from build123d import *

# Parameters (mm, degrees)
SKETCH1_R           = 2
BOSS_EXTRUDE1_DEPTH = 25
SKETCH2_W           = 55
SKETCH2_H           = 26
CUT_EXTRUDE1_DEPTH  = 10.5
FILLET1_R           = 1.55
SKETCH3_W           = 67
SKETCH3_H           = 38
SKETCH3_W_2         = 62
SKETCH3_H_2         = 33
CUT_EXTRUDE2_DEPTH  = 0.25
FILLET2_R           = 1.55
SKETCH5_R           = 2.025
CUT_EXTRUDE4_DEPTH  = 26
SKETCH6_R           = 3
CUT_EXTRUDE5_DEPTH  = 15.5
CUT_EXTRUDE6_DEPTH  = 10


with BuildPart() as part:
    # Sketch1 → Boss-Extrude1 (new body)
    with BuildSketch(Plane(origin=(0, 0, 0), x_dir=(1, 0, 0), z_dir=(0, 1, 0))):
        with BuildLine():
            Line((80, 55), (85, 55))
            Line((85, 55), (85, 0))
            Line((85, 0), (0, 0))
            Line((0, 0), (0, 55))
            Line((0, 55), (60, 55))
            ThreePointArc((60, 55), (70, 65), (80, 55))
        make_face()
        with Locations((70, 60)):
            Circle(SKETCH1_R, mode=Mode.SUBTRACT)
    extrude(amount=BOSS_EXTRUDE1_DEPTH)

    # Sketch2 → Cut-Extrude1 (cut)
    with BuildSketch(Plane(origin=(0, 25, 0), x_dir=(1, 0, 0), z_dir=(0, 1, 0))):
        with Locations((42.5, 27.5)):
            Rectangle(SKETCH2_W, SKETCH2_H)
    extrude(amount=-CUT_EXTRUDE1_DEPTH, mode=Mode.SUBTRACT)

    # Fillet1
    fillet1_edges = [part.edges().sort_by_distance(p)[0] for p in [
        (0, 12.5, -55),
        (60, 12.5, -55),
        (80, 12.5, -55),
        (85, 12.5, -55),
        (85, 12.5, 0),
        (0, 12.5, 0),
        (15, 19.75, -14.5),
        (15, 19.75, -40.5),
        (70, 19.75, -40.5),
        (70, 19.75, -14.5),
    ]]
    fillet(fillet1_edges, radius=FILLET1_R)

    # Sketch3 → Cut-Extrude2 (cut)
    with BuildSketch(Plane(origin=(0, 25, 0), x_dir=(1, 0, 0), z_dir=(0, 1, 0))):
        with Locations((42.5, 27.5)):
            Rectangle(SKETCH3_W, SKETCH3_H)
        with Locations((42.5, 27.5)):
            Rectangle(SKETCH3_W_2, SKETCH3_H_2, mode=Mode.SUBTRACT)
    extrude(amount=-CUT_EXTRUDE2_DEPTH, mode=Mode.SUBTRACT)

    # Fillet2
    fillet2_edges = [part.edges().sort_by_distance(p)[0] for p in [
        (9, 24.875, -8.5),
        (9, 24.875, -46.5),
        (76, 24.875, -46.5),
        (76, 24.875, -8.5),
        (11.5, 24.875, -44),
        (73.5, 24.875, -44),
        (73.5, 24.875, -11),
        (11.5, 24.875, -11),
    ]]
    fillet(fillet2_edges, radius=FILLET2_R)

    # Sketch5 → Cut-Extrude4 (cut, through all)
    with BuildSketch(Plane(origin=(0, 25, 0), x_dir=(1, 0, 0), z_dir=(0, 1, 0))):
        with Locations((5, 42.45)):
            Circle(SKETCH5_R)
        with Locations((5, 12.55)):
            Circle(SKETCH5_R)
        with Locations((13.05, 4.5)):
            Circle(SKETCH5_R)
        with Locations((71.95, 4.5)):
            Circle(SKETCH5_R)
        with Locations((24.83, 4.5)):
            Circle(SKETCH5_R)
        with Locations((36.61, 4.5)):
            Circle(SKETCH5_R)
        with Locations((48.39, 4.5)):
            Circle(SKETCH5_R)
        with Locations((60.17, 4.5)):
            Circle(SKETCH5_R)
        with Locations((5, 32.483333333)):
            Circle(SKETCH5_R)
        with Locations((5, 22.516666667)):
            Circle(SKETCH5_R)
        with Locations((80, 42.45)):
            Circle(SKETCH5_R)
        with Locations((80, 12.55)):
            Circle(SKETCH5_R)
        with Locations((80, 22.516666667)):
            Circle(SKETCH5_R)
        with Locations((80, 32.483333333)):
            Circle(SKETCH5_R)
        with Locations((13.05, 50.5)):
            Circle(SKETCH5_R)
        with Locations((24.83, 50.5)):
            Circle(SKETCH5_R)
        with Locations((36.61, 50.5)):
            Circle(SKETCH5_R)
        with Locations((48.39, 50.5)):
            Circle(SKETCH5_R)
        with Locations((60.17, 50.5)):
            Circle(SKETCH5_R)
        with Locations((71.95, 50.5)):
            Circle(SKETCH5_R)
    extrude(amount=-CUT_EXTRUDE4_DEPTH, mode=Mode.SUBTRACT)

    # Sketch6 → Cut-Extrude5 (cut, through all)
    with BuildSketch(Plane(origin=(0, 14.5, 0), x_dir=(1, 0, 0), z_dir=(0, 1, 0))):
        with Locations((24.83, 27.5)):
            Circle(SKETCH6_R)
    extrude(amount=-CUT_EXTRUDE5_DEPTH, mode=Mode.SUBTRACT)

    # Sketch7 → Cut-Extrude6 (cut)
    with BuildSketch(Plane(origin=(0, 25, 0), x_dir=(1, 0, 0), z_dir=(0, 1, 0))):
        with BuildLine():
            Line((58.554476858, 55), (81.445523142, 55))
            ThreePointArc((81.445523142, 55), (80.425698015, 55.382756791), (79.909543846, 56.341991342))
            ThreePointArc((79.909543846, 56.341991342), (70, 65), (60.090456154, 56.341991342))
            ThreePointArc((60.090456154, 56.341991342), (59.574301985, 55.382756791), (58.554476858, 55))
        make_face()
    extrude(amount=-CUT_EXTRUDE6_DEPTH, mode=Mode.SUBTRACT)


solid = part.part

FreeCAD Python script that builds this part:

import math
import FreeCAD as App
import Part
import Sketcher

V = App.Vector
Q = App.Units.Quantity


def edges_at(feature, points):
    """Names of the edges that pass closest to the given points."""
    edges = feature.Shape.Edges
    near = lambda p: min(range(len(edges)), key=lambda i: edges[i].distToShape(Part.Vertex(*p))[0])
    return sorted({f"Edge{near(p) + 1}" for p in points})


def add_polygon(sketch, points):
    """Adds a closed chain of lines whose ends are joined by coincident constraints."""
    first, n = sketch.GeometryCount, len(points)
    for a, b in zip(points, points[1:] + points[:1]):
        sketch.addGeometry(Part.LineSegment(App.Vector(*a, 0), App.Vector(*b, 0)), False)
    for i in range(n):
        sketch.addConstraint(Sketcher.Constraint("Coincident", first + i, 2, first + (i + 1) % n, 1))

doc = App.newDocument("Part")
params = doc.addObject("Spreadsheet::Sheet", "Params")
for row, (alias, value) in enumerate([
    ("sketch1_diameter", "4 mm"),
    ("sketch1_radius", "10 mm"),
    ("sketch1_width", "5 mm"),
    ("sketch1_width2", "60 mm"),
    ("sketch1_height", "55 mm"),
    ("pad1_length", "25 mm"),
    ("sketch2_width", "55 mm"),
    ("sketch2_height", "26 mm"),
    ("pocket1_length", "10.5 mm"),
    ("fillet_radius", "1.55 mm"),
    ("sketch3_width", "67 mm"),
    ("sketch3_width2", "62 mm"),
    ("sketch3_height", "38 mm"),
    ("sketch3_height2", "33 mm"),
    ("pocket2_length", "0.25 mm"),
    ("fillet2_radius", "1.55 mm"),
    ("sketch4_diameter", "4.05 mm"),
    ("sketch5_diameter", "6 mm"),
    ("sketch6_radius", "10 mm"),
    ("sketch6_radius2", "1.55 mm"),
    ("pocket5_length", "10 mm"),
], start=1):
    params.set(f"A{row}", alias)
    params.set(f"B{row}", "=" + value)
    params.setAlias(f"B{row}", alias)

body = doc.addObject("PartDesign::Body", "Body")

# Sketch on XZ plane
sketch1 = body.newObject("Sketcher::SketchObject", "Sketch")
sketch1.AttachmentSupport = (doc.getObject("XZ_Plane"), [""])
sketch1.MapMode = "FlatFace"
sketch1.addGeometry([
    Part.LineSegment(V(85, -55, 0), V(80, -55, 0)),  # 0
    Part.ArcOfCircle(Part.Circle(V(70, -55, 0), V(0, 0, 1), 10), math.radians(180), math.radians(360)),  # 1
    Part.LineSegment(V(60, -55, 0), V(0, -55, 0)),  # 2
    Part.LineSegment(V(0, -55, 0), V(0, 0, 0)),  # 3
    Part.LineSegment(V(0, 0, 0), V(85, 0, 0)),  # 4
    Part.LineSegment(V(85, 0, 0), V(85, -55, 0)),  # 5
    Part.Circle(V(70, -60, 0), V(0, 0, 1), 2),  # 6
], False)
sketch1.addConstraint([
    Sketcher.Constraint("Coincident", 0, 2, 1, 2),
    Sketcher.Constraint("Coincident", 1, 1, 2, 1),
    Sketcher.Constraint("Coincident", 2, 2, 3, 1),
    Sketcher.Constraint("Coincident", 3, 2, 4, 1),
    Sketcher.Constraint("Coincident", 4, 2, 5, 1),
    Sketcher.Constraint("Coincident", 5, 2, 0, 1),
    Sketcher.Constraint("Horizontal", 0),
    Sketcher.Constraint("Horizontal", 2),
    Sketcher.Constraint("Vertical", 3),
    Sketcher.Constraint("Horizontal", 4),
    Sketcher.Constraint("Vertical", 5),
    Sketcher.Constraint("Coincident", 3, 2, -1, 1),
    Sketcher.Constraint("Horizontal", 1, 3, 0, 2),
    Sketcher.Constraint("Horizontal", 0, 2, 1, 1),
    Sketcher.Constraint("Vertical", 1, 3, 6, 3),
    Sketcher.Constraint("Diameter", 6, Q("4 mm")),
    Sketcher.Constraint("Radius", 1, Q("10 mm")),
    Sketcher.Constraint("DistanceX", 0, 2, 0, 1, Q("5 mm")),
    Sketcher.Constraint("DistanceX", 2, 2, 2, 1, Q("60 mm")),
    Sketcher.Constraint("DistanceY", 3, 1, 3, 2, Q("55 mm")),
    Sketcher.Constraint("DistanceY", 6, 3, -1, 1, Q("60 mm")),
])
sketch1.setExpression("Constraints[15]", "Params.sketch1_diameter")
sketch1.setExpression("Constraints[16]", "Params.sketch1_radius")
sketch1.setExpression("Constraints[17]", "Params.sketch1_width")
sketch1.setExpression("Constraints[18]", "Params.sketch1_width2")
sketch1.setExpression("Constraints[19]", "Params.sketch1_height")
pad1 = body.newObject("PartDesign::Pad", "Pad")
pad1.Profile = sketch1
pad1.setExpression("Length", "Params.pad1_length")
pad1.Reversed = True

# Sketch on XZ plane
sketch2 = body.newObject("Sketcher::SketchObject", "Sketch001")
sketch2.AttachmentSupport = (doc.getObject("XZ_Plane"), [""])
sketch2.MapMode = "FlatFace"
sketch2.AttachmentOffset = App.Placement(V(0, 0, -25), App.Rotation())
add_polygon(sketch2, [(15, -40), (15, -14), (70, -14), (70, -40)])  # lines 0-3
sketch2.addConstraint([
    Sketcher.Constraint("Vertical", 0),
    Sketcher.Constraint("Horizontal", 1),
    Sketcher.Constraint("Vertical", 2),
    Sketcher.Constraint("Horizontal", 3),
    Sketcher.Constraint("DistanceX", 1, 1, 1, 2, Q("55 mm")),
    Sketcher.Constraint("DistanceY", 0, 1, 0, 2, Q("26 mm")),
    Sketcher.Constraint("DistanceX", -1, 1, 0, 2, Q("15 mm")),
    Sketcher.Constraint("DistanceY", 0, 2, -1, 1, Q("14.5 mm")),
])
sketch2.setExpression("Constraints[8]", "Params.sketch2_width")
sketch2.setExpression("Constraints[9]", "Params.sketch2_height")
pocket1 = body.newObject("PartDesign::Pocket", "Pocket")
pocket1.Profile = sketch2
pocket1.setExpression("Length", "Params.pocket1_length")
pocket1.Reversed = True
doc.recompute()

fillet = body.newObject("PartDesign::Fillet", "Fillet")
fillet.Base = (pocket1, edges_at(pocket1, [
    (0, 12.5, -55),
    (60, 12.5, -55),
    (80, 12.5, -55),
    (85, 12.5, -55),
    (85, 12.5, 0),
    (0, 12.5, 0),
    (15, 19.75, -14.5),
    (15, 19.75, -40.5),
    (70, 19.75, -40.5),
    (70, 19.75, -14.5),
]))
fillet.setExpression("Radius", "Params.fillet_radius")

# Sketch on XZ plane
sketch3 = body.newObject("Sketcher::SketchObject", "Sketch002")
sketch3.AttachmentSupport = (doc.getObject("XZ_Plane"), [""])
sketch3.MapMode = "FlatFace"
sketch3.AttachmentOffset = App.Placement(V(0, 0, -25), App.Rotation())
add_polygon(sketch3, [(9, -46), (9, -8), (76, -8), (76, -46)])  # lines 0-3
add_polygon(sketch3, [(74, -11), (12, -11), (12, -44), (74, -44)])  # lines 4-7
sketch3.addConstraint([
    Sketcher.Constraint("Vertical", 0),
    Sketcher.Constraint("Horizontal", 1),
    Sketcher.Constraint("Vertical", 2),
    Sketcher.Constraint("Horizontal", 3),
    Sketcher.Constraint("Horizontal", 4),
    Sketcher.Constraint("Vertical", 5),
    Sketcher.Constraint("Horizontal", 6),
    Sketcher.Constraint("Vertical", 7),
    Sketcher.Constraint("DistanceX", 1, 1, 1, 2, Q("67 mm")),
    Sketcher.Constraint("DistanceX", 4, 2, 4, 1, Q("62 mm")),
    Sketcher.Constraint("DistanceY", 0, 1, 0, 2, Q("38 mm")),
    Sketcher.Constraint("DistanceY", 5, 2, 5, 1, Q("33 mm")),
    Sketcher.Constraint("DistanceX", -1, 1, 0, 2, Q("9 mm")),
    Sketcher.Constraint("DistanceY", 4, 2, -1, 1, Q("11 mm")),
    Sketcher.Constraint("DistanceY", 0, 2, -1, 1, Q("8.5 mm")),
    Sketcher.Constraint("DistanceX", -1, 1, 4, 2, Q("11.5 mm")),
])
sketch3.setExpression("Constraints[16]", "Params.sketch3_width")
sketch3.setExpression("Constraints[17]", "Params.sketch3_width2")
sketch3.setExpression("Constraints[18]", "Params.sketch3_height")
sketch3.setExpression("Constraints[19]", "Params.sketch3_height2")
pocket2 = body.newObject("PartDesign::Pocket", "Pocket001")
pocket2.Profile = sketch3
pocket2.setExpression("Length", "Params.pocket2_length")
pocket2.Reversed = True
doc.recompute()

fillet2 = body.newObject("PartDesign::Fillet", "Fillet001")
fillet2.Base = (pocket2, edges_at(pocket2, [
    (9, 24.875, -8.5),
    (9, 24.875, -46.5),
    (76, 24.875, -46.5),
    (76, 24.875, -8.5),
    (11.5, 24.875, -44),
    (73.5, 24.875, -44),
    (73.5, 24.875, -11),
    (11.5, 24.875, -11),
]))
fillet2.setExpression("Radius", "Params.fillet2_radius")

# Sketch on XZ plane
sketch4 = body.newObject("Sketcher::SketchObject", "Sketch003")
sketch4.AttachmentSupport = (doc.getObject("XZ_Plane"), [""])
sketch4.MapMode = "FlatFace"
sketch4.AttachmentOffset = App.Placement(V(0, 0, -25), App.Rotation())
sketch4.addGeometry([
    Part.Circle(V(5, -42.5, 0), V(0, 0, 1), 2),  # 0
    Part.Circle(V(5, -12.6, 0), V(0, 0, 1), 2),  # 1
    Part.Circle(V(13.1, -4.5, 0), V(0, 0, 1), 2),  # 2
    Part.Circle(V(72, -4.5, 0), V(0, 0, 1), 2),  # 3
    Part.Circle(V(24.8, -4.5, 0), V(0, 0, 1), 2),  # 4
    Part.Circle(V(36.6, -4.5, 0), V(0, 0, 1), 2),  # 5
    Part.Circle(V(48.4, -4.5, 0), V(0, 0, 1), 2),  # 6
    Part.Circle(V(60.2, -4.5, 0), V(0, 0, 1), 2),  # 7
    Part.Circle(V(5, -32.5, 0), V(0, 0, 1), 2),  # 8
    Part.Circle(V(5, -22.5, 0), V(0, 0, 1), 2),  # 9
    Part.Circle(V(80, -42.5, 0), V(0, 0, 1), 2),  # 10
    Part.Circle(V(80, -12.6, 0), V(0, 0, 1), 2),  # 11
    Part.Circle(V(80, -22.5, 0), V(0, 0, 1), 2),  # 12
    Part.Circle(V(80, -32.5, 0), V(0, 0, 1), 2),  # 13
    Part.Circle(V(13.1, -50.5, 0), V(0, 0, 1), 2),  # 14
    Part.Circle(V(24.8, -50.5, 0), V(0, 0, 1), 2),  # 15
    Part.Circle(V(36.6, -50.5, 0), V(0, 0, 1), 2),  # 16
    Part.Circle(V(48.4, -50.5, 0), V(0, 0, 1), 2),  # 17
    Part.Circle(V(60.2, -50.5, 0), V(0, 0, 1), 2),  # 18
    Part.Circle(V(72, -50.5, 0), V(0, 0, 1), 2),  # 19
], False)
sketch4.addConstraint([
    Sketcher.Constraint("Equal", 0, 1),
    Sketcher.Constraint("Equal", 1, 2),
    Sketcher.Constraint("Equal", 2, 3),
    Sketcher.Constraint("Equal", 3, 4),
    Sketcher.Constraint("Equal", 4, 5),
    Sketcher.Constraint("Equal", 5, 6),
    Sketcher.Constraint("Equal", 6, 7),
    Sketcher.Constraint("Equal", 7, 8),
    Sketcher.Constraint("Equal", 8, 9),
    Sketcher.Constraint("Equal", 9, 10),
    Sketcher.Constraint("Equal", 10, 11),
    Sketcher.Constraint("Equal", 11, 12),
    Sketcher.Constraint("Equal", 12, 13),
    Sketcher.Constraint("Equal", 13, 14),
    Sketcher.Constraint("Equal", 14, 15),
    Sketcher.Constraint("Equal", 15, 16),
    Sketcher.Constraint("Equal", 16, 17),
    Sketcher.Constraint("Equal", 17, 18),
    Sketcher.Constraint("Equal", 18, 19),
    Sketcher.Constraint("Horizontal", 2, 3, 3, 3),
    Sketcher.Constraint("Horizontal", 3, 3, 4, 3),
    Sketcher.Constraint("Horizontal", 4, 3, 5, 3),
    Sketcher.Constraint("Horizontal", 5, 3, 6, 3),
    Sketcher.Constraint("Horizontal", 6, 3, 7, 3),
    Sketcher.Constraint("Horizontal", 0, 3, 10, 3),
    Sketcher.Constraint("Horizontal", 1, 3, 11, 3),
    Sketcher.Constraint("Horizontal", 9, 3, 12, 3),
    Sketcher.Constraint("Horizontal", 8, 3, 13, 3),
    Sketcher.Constraint("Horizontal", 14, 3, 15, 3),
    Sketcher.Constraint("Horizontal", 15, 3, 16, 3),
    Sketcher.Constraint("Horizontal", 16, 3, 17, 3),
    Sketcher.Constraint("Horizontal", 17, 3, 18, 3),
    Sketcher.Constraint("Horizontal", 18, 3, 19, 3),
    Sketcher.Constraint("Vertical", 0, 3, 1, 3),
    Sketcher.Constraint("Vertical", 1, 3, 8, 3),
    Sketcher.Constraint("Vertical", 8, 3, 9, 3),
    Sketcher.Constraint("Vertical", 10, 3, 11, 3),
    Sketcher.Constraint("Vertical", 11, 3, 12, 3),
    Sketcher.Constraint("Vertical", 12, 3, 13, 3),
    Sketcher.Constraint("Vertical", 2, 3, 14, 3),
    Sketcher.Constraint("Vertical", 4, 3, 15, 3),
    Sketcher.Constraint("Vertical", 5, 3, 16, 3),
    Sketcher.Constraint("Vertical", 6, 3, 17, 3),
    Sketcher.Constraint("Vertical", 7, 3, 18, 3),
    Sketcher.Constraint("Vertical", 3, 3, 19, 3),
    Sketcher.Constraint("Diameter", 0, Q("4.05 mm")),
    Sketcher.Constraint("DistanceX", -1, 1, 0, 3, Q("5 mm")),
    Sketcher.Constraint("DistanceX", -1, 1, 10, 3, Q("80 mm")),
    Sketcher.Constraint("DistanceY", 14, 3, 2, 3, Q("46 mm")),
    Sketcher.Constraint("DistanceY", 2, 3, -1, 1, Q("4.5 mm")),
    Sketcher.Constraint("DistanceY", 0, 3, 1, 3, Q("29.9 mm")),
    Sketcher.Constraint("DistanceX", 2, 3, 3, 3, Q("58.9 mm")),
    Sketcher.Constraint("DistanceY", 0, 3, -1, 1, Q("42.45 mm")),
    Sketcher.Constraint("DistanceX", -1, 1, 2, 3, Q("13.05 mm")),
    Sketcher.Constraint("DistanceX", -1, 1, 4, 3, Q("24.83 mm")),
    Sketcher.Constraint("DistanceX", -1, 1, 5, 3, Q("36.61 mm")),
    Sketcher.Constraint("DistanceX", -1, 1, 6, 3, Q("48.39 mm")),
    Sketcher.Constraint("DistanceX", -1, 1, 7, 3, Q("60.17 mm")),
    Sketcher.Constraint("DistanceY", 8, 3, -1, 1, Q("32.483333 mm")),
    Sketcher.Constraint("DistanceY", 9, 3, -1, 1, Q("22.516667 mm")),
])
sketch4.setExpression("Constraints[45]", "Params.sketch4_diameter")
pocket3 = body.newObject("PartDesign::Pocket", "Pocket002")
pocket3.Profile = sketch4
pocket3.Type = "ThroughAll"
pocket3.Reversed = True

# Sketch on XZ plane
sketch5 = body.newObject("Sketcher::SketchObject", "Sketch004")
sketch5.AttachmentSupport = (doc.getObject("XZ_Plane"), [""])
sketch5.MapMode = "FlatFace"
sketch5.AttachmentOffset = App.Placement(V(0, 0, -14.5), App.Rotation())
sketch5.addGeometry(Part.Circle(V(24.8, -27.5, 0), V(0, 0, 1), 3), False)
sketch5.addConstraint([
    Sketcher.Constraint("Diameter", 0, Q("6 mm")),
    Sketcher.Constraint("DistanceY", 0, 3, -1, 1, Q("27.5 mm")),
    Sketcher.Constraint("DistanceX", -1, 1, 0, 3, Q("24.83 mm")),
])
sketch5.setExpression("Constraints[0]", "Params.sketch5_diameter")
pocket4 = body.newObject("PartDesign::Pocket", "Pocket003")
pocket4.Profile = sketch5
pocket4.Type = "ThroughAll"
pocket4.Reversed = True

# Sketch on XZ plane
sketch6 = body.newObject("Sketcher::SketchObject", "Sketch005")
sketch6.AttachmentSupport = (doc.getObject("XZ_Plane"), [""])
sketch6.MapMode = "FlatFace"
sketch6.AttachmentOffset = App.Placement(V(0, 0, -25), App.Rotation())
sketch6.addGeometry([
    Part.LineSegment(V(58.6, -55, 0), V(81.4, -55, 0)),
    Part.ArcOfCircle(Part.Circle(V(81.4, -56.6, 0), V(0, 0, 1), 1.6), math.radians(90), math.radians(172)),
    Part.ArcOfCircle(Part.Circle(V(70, -55, 0), V(0, 0, 1), 10), math.radians(-172), math.radians(-8)),
    Part.ArcOfCircle(Part.Circle(V(58.6, -56.6, 0), V(0, 0, 1), 1.6), math.radians(8), math.radians(90)),
], False)
sketch6.addConstraint([
    Sketcher.Constraint("Tangent", 0, 2, 1, 1),
    Sketcher.Constraint("Tangent", 1, 2, 2, 2),
    Sketcher.Constraint("Tangent", 2, 1, 3, 1),
    Sketcher.Constraint("Tangent", 3, 2, 0, 1),
    Sketcher.Constraint("Horizontal", 0),
    Sketcher.Constraint("Equal", 1, 3),
    Sketcher.Constraint("Horizontal", 2, 3, 0, 2),
    Sketcher.Constraint("Radius", 2, Q("10 mm")),
    Sketcher.Constraint("Radius", 1, Q("1.55 mm")),
    Sketcher.Constraint("DistanceX", -1, 1, 2, 3, Q("70 mm")),
    Sketcher.Constraint("DistanceY", 2, 3, -1, 1, Q("55 mm")),
])
sketch6.setExpression("Constraints[7]", "Params.sketch6_radius")
sketch6.setExpression("Constraints[8]", "Params.sketch6_radius2")
pocket5 = body.newObject("PartDesign::Pocket", "Pocket004")
pocket5.Profile = sketch6
pocket5.setExpression("Length", "Params.pocket5_length")
pocket5.Reversed = True

doc.recompute()
